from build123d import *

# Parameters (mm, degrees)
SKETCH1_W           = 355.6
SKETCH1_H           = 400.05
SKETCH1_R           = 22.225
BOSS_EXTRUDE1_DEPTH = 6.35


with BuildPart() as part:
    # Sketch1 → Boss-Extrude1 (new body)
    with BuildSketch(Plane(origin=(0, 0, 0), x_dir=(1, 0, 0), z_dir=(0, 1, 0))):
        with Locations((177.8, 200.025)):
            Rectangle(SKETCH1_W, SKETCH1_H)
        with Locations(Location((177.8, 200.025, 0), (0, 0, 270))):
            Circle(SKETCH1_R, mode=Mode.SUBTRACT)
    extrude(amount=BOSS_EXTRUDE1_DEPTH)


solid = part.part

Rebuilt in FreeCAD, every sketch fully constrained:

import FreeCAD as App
import Part
import Sketcher

V = App.Vector
Q = App.Units.Quantity


def add_polygon(sketch, points):
    """Adds a closed chain of lines whose ends are joined by coincident constraints."""
    first, n = sketch.GeometryCount, len(points)
    for a, b in zip(points, points[1:] + points[:1]):
        sketch.addGeometry(Part.LineSegment(App.Vector(*a, 0), App.Vector(*b, 0)), False)
    for i in range(n):
        sketch.addConstraint(Sketcher.Constraint("Coincident", first + i, 2, first + (i + 1) % n, 1))

doc = App.newDocument("Part")
params = doc.addObject("Spreadsheet::Sheet", "Params")
for row, (alias, value) in enumerate([
    ("sketch1_diameter", "1.75 in"),
    ("sketch1_width", "14 in"),
    ("sketch1_height", "15.75 in"),
    ("pad1_length", "0.25 in"),
], start=1):
    params.set(f"A{row}", alias)
    params.set(f"B{row}", "=" + value)
    params.setAlias(f"B{row}", alias)

body = doc.addObject("PartDesign::Body", "Body")

sketch1 = doc.addObject("Sketcher::SketchObject", "Sketch")
body.addObject(sketch1)
sketch1.AttachmentSupport = (doc.XZ_Plane, [""])
sketch1.MapMode = "FlatFace"
add_polygon(sketch1, [(0, -400), (0, 0), (356, 0), (356, -400)])
sketch1.addGeometry(Part.Circle(V(178, -200, 0), V(0, 0, 1), 22), False)
sketch1.addConstraint(Sketcher.Constraint("Vertical", 0))
sketch1.addConstraint(Sketcher.Constraint("Horizontal", 1))
sketch1.addConstraint(Sketcher.Constraint("Vertical", 2))
sketch1.addConstraint(Sketcher.Constraint("Horizontal", 3))
sketch1.addConstraint(Sketcher.Constraint("Coincident", 0, 2, -1, 1))
sketch1.addConstraint(Sketcher.Constraint("Diameter", 4, Q("1.75 in")))
sketch1.addConstraint(Sketcher.Constraint("DistanceX", 1, 1, 1, 2, Q("14 in")))
sketch1.addConstraint(Sketcher.Constraint("DistanceX", -1, 1, 4, 3, Q("7 in")))
sketch1.addConstraint(Sketcher.Constraint("DistanceY", 0, 1, 0, 2, Q("15.75 in")))
sketch1.addConstraint(Sketcher.Constraint("DistanceY", 4, 3, -1, 1, Q("7.875 in")))
sketch1.setExpression("Constraints[9]", "Params.sketch1_diameter")
sketch1.setExpression("Constraints[10]", "Params.sketch1_width")
sketch1.setExpression("Constraints[12]", "Params.sketch1_height")
pad1 = doc.addObject("PartDesign::Pad", "Pad")
body.addObject(pad1)
pad1.Profile = sketch1
pad1.setExpression("Length", "Params.pad1_length")
pad1.Reversed = True

doc.recompute()
